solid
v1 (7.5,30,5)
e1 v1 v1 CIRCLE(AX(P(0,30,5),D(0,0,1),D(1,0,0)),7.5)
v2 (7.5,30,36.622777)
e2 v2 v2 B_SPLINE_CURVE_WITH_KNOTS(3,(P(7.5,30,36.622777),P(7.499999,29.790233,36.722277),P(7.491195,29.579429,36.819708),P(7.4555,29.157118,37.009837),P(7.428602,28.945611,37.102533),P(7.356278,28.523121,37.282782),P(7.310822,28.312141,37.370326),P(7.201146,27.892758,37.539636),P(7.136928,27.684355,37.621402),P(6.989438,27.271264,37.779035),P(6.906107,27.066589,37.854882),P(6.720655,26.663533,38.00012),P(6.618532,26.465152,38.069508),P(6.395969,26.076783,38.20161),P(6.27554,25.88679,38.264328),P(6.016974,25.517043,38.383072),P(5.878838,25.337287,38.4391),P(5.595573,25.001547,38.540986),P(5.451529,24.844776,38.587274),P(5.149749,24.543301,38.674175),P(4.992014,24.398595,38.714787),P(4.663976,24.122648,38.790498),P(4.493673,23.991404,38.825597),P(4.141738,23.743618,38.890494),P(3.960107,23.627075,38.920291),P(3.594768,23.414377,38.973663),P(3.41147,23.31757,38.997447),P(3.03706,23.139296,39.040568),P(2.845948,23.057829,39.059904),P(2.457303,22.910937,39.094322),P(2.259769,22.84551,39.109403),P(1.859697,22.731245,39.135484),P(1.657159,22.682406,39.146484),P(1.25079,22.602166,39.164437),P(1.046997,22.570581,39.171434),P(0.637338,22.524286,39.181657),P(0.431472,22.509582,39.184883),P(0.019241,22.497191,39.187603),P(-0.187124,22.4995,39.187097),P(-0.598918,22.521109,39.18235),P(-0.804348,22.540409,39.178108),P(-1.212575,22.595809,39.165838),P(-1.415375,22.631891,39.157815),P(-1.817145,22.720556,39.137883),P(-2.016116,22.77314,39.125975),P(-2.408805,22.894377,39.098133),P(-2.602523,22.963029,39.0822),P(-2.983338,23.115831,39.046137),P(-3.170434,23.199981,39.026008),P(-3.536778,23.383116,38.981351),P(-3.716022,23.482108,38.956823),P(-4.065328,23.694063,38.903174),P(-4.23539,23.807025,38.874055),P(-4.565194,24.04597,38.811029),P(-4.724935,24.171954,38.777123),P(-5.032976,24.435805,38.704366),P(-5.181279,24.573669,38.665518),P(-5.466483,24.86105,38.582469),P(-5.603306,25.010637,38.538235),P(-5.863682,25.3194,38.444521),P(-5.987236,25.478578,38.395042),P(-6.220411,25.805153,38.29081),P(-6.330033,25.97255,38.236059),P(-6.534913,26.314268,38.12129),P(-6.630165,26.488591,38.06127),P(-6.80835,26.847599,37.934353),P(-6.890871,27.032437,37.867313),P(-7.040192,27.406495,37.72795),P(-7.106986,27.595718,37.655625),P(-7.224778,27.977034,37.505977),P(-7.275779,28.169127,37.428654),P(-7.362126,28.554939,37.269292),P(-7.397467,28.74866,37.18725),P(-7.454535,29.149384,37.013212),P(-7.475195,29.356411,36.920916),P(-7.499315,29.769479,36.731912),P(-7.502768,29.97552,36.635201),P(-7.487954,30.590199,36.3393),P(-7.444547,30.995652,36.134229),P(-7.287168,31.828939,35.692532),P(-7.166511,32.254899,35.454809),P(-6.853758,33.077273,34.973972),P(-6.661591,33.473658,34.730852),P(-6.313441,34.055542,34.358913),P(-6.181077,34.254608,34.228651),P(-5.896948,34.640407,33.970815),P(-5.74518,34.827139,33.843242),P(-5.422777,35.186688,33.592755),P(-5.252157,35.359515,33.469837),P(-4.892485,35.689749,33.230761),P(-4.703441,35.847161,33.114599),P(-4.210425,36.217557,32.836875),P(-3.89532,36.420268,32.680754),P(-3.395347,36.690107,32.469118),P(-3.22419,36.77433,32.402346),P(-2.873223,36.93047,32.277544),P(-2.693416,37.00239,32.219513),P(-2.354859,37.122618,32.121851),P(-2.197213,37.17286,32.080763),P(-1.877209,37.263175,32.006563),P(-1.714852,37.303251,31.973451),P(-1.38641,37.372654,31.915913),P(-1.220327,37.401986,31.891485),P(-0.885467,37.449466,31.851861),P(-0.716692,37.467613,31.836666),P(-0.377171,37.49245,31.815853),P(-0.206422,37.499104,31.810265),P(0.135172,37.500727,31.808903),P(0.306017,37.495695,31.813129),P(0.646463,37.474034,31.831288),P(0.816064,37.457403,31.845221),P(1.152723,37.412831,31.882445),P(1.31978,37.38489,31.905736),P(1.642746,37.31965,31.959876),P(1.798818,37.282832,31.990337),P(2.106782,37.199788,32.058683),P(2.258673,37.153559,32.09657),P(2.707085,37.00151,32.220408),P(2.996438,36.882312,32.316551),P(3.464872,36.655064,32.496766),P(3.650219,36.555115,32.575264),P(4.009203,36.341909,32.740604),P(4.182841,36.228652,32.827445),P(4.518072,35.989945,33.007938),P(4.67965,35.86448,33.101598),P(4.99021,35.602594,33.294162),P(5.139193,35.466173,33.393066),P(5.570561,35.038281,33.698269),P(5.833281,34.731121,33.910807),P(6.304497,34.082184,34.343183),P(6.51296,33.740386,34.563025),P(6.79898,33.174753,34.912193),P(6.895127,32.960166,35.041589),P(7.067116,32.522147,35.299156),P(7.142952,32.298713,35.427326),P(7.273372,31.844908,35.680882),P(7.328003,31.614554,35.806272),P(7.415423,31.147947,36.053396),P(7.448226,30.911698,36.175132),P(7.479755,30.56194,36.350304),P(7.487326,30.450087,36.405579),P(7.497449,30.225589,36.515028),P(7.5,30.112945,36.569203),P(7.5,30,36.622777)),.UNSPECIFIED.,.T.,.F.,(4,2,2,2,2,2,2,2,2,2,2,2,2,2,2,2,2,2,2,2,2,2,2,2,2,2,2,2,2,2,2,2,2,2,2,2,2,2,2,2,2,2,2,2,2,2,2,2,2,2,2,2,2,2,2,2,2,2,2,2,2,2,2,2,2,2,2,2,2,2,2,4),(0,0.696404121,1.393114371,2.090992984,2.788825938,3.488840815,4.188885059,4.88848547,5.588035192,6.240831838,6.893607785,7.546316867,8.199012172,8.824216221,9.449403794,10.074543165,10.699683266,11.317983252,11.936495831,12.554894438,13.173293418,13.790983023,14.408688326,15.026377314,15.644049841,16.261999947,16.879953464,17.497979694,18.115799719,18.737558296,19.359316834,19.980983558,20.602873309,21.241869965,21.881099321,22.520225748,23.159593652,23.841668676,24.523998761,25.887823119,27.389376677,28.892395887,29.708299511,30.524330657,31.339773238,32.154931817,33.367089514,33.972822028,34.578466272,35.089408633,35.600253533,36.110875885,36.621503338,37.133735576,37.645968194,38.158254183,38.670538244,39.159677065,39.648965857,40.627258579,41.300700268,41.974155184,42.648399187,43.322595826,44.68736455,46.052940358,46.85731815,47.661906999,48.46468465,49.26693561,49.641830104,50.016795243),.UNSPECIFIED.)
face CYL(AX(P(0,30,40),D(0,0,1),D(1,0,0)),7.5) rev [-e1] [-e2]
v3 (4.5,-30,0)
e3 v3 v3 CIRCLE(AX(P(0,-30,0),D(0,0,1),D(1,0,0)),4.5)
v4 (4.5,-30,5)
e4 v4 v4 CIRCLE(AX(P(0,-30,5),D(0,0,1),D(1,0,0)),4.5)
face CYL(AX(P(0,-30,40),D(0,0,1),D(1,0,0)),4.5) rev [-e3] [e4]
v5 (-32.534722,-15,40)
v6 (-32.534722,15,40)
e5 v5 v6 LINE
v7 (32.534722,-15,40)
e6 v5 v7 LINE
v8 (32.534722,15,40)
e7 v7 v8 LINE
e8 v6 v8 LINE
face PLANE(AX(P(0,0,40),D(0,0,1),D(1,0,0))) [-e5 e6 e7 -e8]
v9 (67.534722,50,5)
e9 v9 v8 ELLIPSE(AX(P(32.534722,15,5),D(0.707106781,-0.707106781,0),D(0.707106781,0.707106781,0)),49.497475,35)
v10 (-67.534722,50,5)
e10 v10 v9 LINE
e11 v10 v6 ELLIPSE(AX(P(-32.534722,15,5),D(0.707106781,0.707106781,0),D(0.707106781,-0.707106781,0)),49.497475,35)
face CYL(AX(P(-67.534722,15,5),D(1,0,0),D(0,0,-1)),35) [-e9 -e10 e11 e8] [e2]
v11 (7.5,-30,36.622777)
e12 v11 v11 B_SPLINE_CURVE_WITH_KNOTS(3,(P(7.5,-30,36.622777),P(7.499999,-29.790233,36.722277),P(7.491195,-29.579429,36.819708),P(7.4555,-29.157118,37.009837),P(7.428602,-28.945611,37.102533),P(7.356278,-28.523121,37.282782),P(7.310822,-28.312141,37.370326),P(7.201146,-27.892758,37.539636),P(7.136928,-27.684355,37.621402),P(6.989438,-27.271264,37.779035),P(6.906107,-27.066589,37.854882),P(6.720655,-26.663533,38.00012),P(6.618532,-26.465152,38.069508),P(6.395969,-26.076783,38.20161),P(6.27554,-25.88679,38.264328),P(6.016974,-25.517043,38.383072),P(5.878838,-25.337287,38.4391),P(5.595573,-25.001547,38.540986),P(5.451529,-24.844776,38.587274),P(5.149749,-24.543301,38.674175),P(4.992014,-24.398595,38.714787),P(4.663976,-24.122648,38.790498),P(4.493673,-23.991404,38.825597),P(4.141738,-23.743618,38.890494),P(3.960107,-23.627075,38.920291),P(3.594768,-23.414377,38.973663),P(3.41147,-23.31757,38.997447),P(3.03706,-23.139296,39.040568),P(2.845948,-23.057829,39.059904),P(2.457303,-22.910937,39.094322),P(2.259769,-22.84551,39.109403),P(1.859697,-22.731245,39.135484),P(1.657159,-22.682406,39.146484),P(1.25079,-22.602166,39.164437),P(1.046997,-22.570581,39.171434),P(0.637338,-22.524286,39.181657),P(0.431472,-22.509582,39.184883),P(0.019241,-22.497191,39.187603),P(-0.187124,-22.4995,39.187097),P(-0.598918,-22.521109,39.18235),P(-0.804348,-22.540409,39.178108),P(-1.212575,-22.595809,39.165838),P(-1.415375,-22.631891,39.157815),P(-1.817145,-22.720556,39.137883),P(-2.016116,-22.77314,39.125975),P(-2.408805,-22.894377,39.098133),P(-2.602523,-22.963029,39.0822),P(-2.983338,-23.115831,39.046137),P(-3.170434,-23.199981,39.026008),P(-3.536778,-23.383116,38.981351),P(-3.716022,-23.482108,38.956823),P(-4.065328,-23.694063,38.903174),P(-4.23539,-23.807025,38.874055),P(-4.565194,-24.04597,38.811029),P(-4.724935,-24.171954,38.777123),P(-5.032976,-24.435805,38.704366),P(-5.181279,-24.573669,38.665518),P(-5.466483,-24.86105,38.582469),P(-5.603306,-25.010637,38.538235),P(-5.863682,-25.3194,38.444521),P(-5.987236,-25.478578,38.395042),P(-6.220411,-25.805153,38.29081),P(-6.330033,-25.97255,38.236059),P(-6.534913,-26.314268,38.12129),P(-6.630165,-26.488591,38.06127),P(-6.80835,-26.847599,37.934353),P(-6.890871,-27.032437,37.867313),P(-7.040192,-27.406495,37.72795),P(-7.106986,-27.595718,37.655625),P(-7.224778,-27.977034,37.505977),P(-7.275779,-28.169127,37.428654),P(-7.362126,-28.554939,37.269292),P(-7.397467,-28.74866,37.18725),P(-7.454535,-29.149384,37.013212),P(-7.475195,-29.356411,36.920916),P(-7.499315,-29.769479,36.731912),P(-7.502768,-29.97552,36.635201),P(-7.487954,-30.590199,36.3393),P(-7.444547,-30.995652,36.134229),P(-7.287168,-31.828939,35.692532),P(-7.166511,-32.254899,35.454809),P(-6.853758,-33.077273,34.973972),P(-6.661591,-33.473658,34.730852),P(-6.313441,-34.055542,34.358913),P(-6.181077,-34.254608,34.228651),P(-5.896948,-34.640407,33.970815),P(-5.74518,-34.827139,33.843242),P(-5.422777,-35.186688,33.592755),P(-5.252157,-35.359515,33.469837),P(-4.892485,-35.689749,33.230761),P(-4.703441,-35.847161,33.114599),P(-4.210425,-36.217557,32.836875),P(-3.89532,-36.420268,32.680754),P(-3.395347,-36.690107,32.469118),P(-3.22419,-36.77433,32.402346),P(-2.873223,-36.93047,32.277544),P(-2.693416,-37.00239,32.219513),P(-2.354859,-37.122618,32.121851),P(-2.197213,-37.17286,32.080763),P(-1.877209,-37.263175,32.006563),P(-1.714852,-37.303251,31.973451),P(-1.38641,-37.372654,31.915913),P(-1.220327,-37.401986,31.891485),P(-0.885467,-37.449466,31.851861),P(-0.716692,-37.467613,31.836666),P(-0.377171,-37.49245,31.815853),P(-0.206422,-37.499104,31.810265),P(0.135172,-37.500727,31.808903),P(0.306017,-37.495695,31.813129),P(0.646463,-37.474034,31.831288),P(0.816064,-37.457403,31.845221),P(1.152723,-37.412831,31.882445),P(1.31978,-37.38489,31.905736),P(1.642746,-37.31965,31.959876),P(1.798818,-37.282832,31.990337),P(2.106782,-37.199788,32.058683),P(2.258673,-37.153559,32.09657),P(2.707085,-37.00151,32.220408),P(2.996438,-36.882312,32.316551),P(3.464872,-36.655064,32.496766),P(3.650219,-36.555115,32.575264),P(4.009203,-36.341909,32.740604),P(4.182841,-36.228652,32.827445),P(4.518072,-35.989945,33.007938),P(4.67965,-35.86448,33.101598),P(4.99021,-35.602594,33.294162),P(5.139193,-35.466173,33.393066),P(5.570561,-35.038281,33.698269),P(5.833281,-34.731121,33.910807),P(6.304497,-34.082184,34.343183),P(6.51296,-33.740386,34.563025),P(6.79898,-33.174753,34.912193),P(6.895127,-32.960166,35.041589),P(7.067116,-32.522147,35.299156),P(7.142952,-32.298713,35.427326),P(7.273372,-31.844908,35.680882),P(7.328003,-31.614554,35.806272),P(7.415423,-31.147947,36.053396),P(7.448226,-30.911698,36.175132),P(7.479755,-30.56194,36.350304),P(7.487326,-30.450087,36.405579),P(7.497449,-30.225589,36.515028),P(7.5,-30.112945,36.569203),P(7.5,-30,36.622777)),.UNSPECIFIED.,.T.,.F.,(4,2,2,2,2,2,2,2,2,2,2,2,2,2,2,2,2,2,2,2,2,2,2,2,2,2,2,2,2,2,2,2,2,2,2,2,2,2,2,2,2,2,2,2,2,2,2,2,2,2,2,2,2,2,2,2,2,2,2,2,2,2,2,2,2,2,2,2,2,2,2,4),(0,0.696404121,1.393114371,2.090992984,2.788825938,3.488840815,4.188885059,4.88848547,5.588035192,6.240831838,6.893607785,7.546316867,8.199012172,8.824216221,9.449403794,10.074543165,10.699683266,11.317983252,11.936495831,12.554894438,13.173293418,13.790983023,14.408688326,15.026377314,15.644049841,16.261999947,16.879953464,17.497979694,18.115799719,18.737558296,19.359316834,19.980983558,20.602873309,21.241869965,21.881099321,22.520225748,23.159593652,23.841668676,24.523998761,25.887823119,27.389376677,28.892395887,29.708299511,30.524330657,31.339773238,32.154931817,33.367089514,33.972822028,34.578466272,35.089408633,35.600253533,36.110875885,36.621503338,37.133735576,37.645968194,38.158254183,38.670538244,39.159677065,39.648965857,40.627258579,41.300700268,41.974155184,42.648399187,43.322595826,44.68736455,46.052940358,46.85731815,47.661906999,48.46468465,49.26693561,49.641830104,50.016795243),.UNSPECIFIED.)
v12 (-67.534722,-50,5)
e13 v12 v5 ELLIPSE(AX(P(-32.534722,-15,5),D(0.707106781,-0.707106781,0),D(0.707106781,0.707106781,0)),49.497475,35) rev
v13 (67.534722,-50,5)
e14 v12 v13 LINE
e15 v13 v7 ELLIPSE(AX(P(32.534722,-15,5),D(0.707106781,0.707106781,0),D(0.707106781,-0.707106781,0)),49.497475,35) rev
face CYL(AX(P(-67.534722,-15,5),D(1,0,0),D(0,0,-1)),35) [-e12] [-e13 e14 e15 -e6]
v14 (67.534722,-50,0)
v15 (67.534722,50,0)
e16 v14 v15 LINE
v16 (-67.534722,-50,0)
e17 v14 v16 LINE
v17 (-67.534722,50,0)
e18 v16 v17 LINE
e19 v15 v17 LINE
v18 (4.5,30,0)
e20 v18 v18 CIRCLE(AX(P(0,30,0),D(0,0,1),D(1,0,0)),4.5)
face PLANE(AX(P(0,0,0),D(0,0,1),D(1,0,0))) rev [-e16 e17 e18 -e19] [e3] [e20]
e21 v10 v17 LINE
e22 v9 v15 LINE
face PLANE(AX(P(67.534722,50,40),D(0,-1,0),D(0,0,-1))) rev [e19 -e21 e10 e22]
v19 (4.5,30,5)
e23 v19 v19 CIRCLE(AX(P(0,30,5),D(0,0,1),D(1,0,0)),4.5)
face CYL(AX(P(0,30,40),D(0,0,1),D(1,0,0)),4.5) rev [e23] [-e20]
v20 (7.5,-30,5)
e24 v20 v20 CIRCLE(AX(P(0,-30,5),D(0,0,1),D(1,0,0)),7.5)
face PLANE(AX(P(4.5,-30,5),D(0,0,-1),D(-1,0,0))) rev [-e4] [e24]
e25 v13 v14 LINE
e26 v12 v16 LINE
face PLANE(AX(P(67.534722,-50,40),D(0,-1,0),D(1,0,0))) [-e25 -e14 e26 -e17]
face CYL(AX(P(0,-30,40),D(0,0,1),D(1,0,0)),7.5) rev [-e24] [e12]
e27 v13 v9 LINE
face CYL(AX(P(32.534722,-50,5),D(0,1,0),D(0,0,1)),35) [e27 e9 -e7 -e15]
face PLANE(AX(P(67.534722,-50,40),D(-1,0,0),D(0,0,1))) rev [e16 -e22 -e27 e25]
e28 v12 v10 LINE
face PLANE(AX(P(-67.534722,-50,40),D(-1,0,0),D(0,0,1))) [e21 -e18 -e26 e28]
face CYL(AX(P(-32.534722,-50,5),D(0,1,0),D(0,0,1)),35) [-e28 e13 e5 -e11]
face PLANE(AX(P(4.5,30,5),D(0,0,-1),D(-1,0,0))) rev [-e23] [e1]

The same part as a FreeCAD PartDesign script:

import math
import FreeCAD as App
import Part
import Sketcher
from FreeCAD import Vector
Q = App.Units.Quantity


def add_polygon(sketch, points):
    """Adds a closed chain of lines whose ends are joined by coincident constraints."""
    first, n = sketch.GeometryCount, len(points)
    for a, b in zip(points, points[1:] + points[:1]):
        sketch.addGeometry(Part.LineSegment(App.Vector(*a, 0), App.Vector(*b, 0)), False)
    for i in range(n):
        sketch.addConstraint(Sketcher.Constraint("Coincident", first + i, 2, first + (i + 1) % n, 1))

doc = App.newDocument("Part")
body = doc.addObject("PartDesign::Body", "Body")

# Sketch on XY plane
sketch1 = body.newObject("Sketcher::SketchObject", "Sketch")
sketch1.AttachmentSupport = (doc.getObject("XY_Plane"), [""])
sketch1.MapMode = "FlatFace"
add_polygon(sketch1, [(-68, 50), (-68, -50), (68, -50), (68, 50)])  # lines 0-3
sketch1.addConstraint([
    Sketcher.Constraint("Vertical", 0),
    Sketcher.Constraint("Horizontal", 1),
    Sketcher.Constraint("Vertical", 2),
    Sketcher.Constraint("Horizontal", 3),
    Sketcher.Constraint("Symmetric", 0, 2, 2, 2, -1, 1),
    Sketcher.Constraint("DistanceY", 0, 2, 0, 1, Q("100 mm")),
    Sketcher.Constraint("DistanceX", 1, 1, 1, 2, Q("135.069444 mm")),
])
pad1 = body.newObject("PartDesign::Pad", "Pad")
pad1.Profile = sketch1
pad1.Length = 40

# Sketch on YZ plane
sketch2 = body.newObject("Sketcher::SketchObject", "Sketch001")
sketch2.AttachmentSupport = (doc.getObject("YZ_Plane"), [""])
sketch2.MapMode = "FlatFace"
sketch2.AttachmentOffset = App.Placement(Vector(0, 0, 67.534722), App.Rotation())
sketch2.addGeometry([
    Part.LineSegment(Vector(50, 5, 0), Vector(50, -42, 0)),  # 0
    Part.LineSegment(Vector(50, -42, 0), Vector(81, 57, 0)),  # 1
    Part.LineSegment(Vector(81, 57, 0), Vector(-12, 40, 0)),  # 2
    Part.LineSegment(Vector(-12, 40, 0), Vector(15, 40, 0)),  # 3
    Part.ArcOfCircle(Part.Circle(Vector(15, 5, 0), Vector(0, 0, 1), 35), math.radians(0), math.radians(90)),  # 4
], False)
sketch2.addConstraint([
    Sketcher.Constraint("Coincident", 0, 2, 1, 1),
    Sketcher.Constraint("Coincident", 1, 2, 2, 1),
    Sketcher.Constraint("Coincident", 2, 2, 3, 1),
    Sketcher.Constraint("Tangent", 3, 2, 4, 2),
    Sketcher.Constraint("Tangent", 4, 1, 0, 1),
    Sketcher.Constraint("Vertical", 0),
    Sketcher.Constraint("Horizontal", 3),
    Sketcher.Constraint("Radius", 4, Q("35 mm")),
    Sketcher.Constraint("DistanceX", -1, 1, 4, 3, Q("15 mm")),
    Sketcher.Constraint("DistanceY", -1, 1, 4, 3, Q("5 mm")),
    Sketcher.Constraint("Distance", 1, Q("103.832458 mm")),
    Sketcher.Constraint("DistanceX", 3, 1, 3, 2, Q("26.655386 mm")),
    Sketcher.Constraint("DistanceY", 0, 2, 0, 1, Q("47.421873 mm")),
    Sketcher.Constraint("DistanceX", 2, 2, 1, 2, Q("92.485231 mm")),
])
pocket1 = body.newObject("PartDesign::Pocket", "Pocket")
pocket1.Profile = sketch2
pocket1.Type = "ThroughAll"
doc.recompute()

mirrored = body.newObject("PartDesign::Mirrored", "Mirrored")
mirrored.Originals = [pocket1]
mirrored.MirrorPlane = (doc.getObject("XZ_Plane"), [""])
body.Tip = mirrored

# Sketch on XZ plane
sketch3 = body.newObject("Sketcher::SketchObject", "Sketch002")
sketch3.AttachmentSupport = (doc.getObject("XZ_Plane"), [""])
sketch3.MapMode = "FlatFace"
sketch3.AttachmentOffset = App.Placement(Vector(0, 0, -50), App.Rotation())
sketch3.addGeometry([
    Part.LineSegment(Vector(-68, 5, 0), Vector(-68, 20, 0)),  # 0
    Part.LineSegment(Vector(-68, 20, 0), Vector(-98, 62, 0)),  # 1
    Part.LineSegment(Vector(-98, 62, 0), Vector(-6, 40, 0)),  # 2
    Part.LineSegment(Vector(-6, 40, 0), Vector(-33, 40, 0)),  # 3
    Part.ArcOfCircle(Part.Circle(Vector(-33, 5, 0), Vector(0, 0, 1), 35), math.radians(90), math.radians(180)),  # 4
], False)
sketch3.addConstraint([
    Sketcher.Constraint("Coincident", 0, 2, 1, 1),
    Sketcher.Constraint("Coincident", 1, 2, 2, 1),
    Sketcher.Constraint("Coincident", 2, 2, 3, 1),
    Sketcher.Constraint("Tangent", 3, 2, 4, 1),
    Sketcher.Constraint("Tangent", 4, 2, 0, 1),
    Sketcher.Constraint("Vertical", 0),
    Sketcher.Constraint("Horizontal", 3),
    Sketcher.Constraint("Radius", 4, Q("35 mm")),
    Sketcher.Constraint("DistanceY", -1, 1, 4, 3, Q("5 mm")),
    Sketcher.Constraint("DistanceY", 0, 1, 0, 2, Q("14.87239 mm")),
    Sketcher.Constraint("Distance", 1, Q("51.984349 mm")),
    Sketcher.Constraint("DistanceX", 3, 2, 3, 1, Q("26.655386 mm")),
    Sketcher.Constraint("DistanceX", 1, 2, 2, 2, Q("92.485231 mm")),
    Sketcher.Constraint("DistanceX", 4, 3, -1, 1, Q("32.534722 mm")),
])
pocket2 = body.newObject("PartDesign::Pocket", "Pocket001")
pocket2.Profile = sketch3
pocket2.Type = "ThroughAll"
pocket2.Reversed = True
doc.recompute()

mirrored2 = body.newObject("PartDesign::Mirrored", "Mirrored001")
mirrored2.Originals = [pocket2]
mirrored2.MirrorPlane = (doc.getObject("YZ_Plane"), [""])
body.Tip = mirrored2

# Sketch on XY plane
sketch4 = body.newObject("Sketcher::SketchObject", "Sketch003")
sketch4.AttachmentSupport = (doc.getObject("XY_Plane"), [""])
sketch4.MapMode = "FlatFace"
sketch4.AttachmentOffset = App.Placement(Vector(0, 0, 40), App.Rotation())
sketch4.addGeometry(Part.Circle(Vector(0, -30, 0), Vector(0, 0, 1), 4.5), False)
sketch4.addConstraint([
    Sketcher.Constraint("PointOnObject", 0, 3, -2),
    Sketcher.Constraint("Diameter", 0, Q("9 mm")),
    Sketcher.Constraint("DistanceY", 0, 3, -1, 1, Q("30 mm")),
])
doc.recompute()
hole = body.newObject("PartDesign::Hole", "Hole")
hole.Profile = sketch4
hole.ThreadType = "None"
hole.Diameter = 9
hole.DepthType = "ThroughAll"
hole.HoleCutType = "Counterbore"
hole.HoleCutDiameter = 15
hole.HoleCutDepth = 35
doc.recompute()

mirrored3 = body.newObject("PartDesign::Mirrored", "Mirrored002")
mirrored3.Originals = [hole]
mirrored3.MirrorPlane = (doc.getObject("XZ_Plane"), [""])
body.Tip = mirrored3

doc.recompute()
